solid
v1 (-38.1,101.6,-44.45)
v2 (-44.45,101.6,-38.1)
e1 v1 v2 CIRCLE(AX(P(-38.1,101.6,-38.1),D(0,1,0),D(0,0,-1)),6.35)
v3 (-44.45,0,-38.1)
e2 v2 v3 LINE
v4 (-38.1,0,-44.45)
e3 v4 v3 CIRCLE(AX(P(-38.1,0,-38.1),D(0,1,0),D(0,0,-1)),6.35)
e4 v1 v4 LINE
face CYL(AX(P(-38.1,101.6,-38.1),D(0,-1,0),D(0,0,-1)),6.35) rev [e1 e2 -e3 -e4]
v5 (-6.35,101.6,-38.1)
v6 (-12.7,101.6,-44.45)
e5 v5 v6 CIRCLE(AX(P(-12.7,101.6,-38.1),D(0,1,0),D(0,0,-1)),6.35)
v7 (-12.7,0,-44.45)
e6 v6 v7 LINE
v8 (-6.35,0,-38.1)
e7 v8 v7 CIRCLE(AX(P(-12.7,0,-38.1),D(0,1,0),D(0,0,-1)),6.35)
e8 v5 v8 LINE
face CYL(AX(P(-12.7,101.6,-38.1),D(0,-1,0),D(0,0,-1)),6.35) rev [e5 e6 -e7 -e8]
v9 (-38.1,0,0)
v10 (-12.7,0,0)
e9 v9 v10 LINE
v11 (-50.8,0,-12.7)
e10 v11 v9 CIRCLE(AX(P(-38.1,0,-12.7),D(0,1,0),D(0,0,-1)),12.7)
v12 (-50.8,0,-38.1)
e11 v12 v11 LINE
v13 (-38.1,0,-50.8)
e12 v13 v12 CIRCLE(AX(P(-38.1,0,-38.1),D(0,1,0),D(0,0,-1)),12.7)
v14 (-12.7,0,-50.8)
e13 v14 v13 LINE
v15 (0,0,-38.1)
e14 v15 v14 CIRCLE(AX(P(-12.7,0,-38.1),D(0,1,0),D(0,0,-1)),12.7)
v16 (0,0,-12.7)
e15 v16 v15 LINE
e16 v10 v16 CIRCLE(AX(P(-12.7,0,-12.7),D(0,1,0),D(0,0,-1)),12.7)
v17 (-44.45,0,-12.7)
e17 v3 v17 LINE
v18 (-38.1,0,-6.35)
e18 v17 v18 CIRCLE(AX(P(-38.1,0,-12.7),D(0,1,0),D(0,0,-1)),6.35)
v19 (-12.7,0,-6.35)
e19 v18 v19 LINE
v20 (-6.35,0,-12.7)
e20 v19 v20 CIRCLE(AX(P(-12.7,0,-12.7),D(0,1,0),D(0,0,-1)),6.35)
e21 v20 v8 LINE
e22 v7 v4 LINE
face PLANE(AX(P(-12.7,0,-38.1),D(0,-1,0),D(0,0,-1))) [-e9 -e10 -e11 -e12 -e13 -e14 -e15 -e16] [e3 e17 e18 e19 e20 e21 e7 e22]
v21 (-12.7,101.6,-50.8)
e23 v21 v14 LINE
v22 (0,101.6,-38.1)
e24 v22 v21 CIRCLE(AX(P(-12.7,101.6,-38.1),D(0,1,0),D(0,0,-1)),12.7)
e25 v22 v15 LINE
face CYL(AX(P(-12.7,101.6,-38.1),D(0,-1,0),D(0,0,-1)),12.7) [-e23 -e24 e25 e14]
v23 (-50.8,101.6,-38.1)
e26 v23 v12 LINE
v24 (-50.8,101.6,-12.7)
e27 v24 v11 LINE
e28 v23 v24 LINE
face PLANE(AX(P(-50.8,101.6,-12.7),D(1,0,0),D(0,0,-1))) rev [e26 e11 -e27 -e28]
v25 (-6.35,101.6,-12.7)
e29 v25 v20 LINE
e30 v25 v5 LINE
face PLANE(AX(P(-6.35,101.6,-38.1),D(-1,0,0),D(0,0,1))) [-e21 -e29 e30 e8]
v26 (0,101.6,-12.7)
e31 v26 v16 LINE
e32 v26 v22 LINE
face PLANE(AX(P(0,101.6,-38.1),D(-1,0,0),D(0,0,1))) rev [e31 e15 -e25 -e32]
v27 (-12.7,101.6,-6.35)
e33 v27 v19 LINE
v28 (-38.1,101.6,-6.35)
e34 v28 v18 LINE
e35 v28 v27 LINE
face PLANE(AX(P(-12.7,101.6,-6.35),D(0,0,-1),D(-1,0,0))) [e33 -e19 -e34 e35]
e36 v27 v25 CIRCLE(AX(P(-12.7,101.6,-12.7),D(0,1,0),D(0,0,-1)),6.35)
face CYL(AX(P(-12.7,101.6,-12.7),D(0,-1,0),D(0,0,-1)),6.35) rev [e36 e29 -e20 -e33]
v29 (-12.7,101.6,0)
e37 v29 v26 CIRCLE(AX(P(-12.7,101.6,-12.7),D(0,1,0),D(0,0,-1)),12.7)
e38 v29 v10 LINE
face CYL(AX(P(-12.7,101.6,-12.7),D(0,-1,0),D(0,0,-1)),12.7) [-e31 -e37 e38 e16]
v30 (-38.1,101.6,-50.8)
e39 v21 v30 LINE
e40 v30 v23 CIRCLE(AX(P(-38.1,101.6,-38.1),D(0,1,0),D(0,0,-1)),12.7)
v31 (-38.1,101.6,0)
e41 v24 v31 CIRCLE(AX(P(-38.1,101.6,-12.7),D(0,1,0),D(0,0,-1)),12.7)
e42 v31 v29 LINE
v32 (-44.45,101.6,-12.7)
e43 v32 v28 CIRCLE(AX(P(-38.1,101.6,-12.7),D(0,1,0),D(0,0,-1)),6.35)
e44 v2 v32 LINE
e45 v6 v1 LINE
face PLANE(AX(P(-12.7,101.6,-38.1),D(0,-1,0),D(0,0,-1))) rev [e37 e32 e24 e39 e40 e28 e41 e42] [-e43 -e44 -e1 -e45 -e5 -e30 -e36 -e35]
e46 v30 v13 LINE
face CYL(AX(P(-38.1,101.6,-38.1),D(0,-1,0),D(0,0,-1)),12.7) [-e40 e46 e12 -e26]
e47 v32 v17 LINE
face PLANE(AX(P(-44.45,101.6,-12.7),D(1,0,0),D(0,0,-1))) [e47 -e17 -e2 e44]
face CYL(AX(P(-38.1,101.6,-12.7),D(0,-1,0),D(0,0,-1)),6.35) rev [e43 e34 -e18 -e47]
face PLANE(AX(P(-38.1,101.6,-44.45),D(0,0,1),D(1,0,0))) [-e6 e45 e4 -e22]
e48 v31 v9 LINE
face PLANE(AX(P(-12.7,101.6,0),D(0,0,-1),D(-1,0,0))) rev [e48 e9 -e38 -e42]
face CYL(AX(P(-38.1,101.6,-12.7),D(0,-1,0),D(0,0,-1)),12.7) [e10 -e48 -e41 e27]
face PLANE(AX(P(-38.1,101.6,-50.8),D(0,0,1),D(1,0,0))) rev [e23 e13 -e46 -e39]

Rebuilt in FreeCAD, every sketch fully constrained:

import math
import FreeCAD as App
import Part
import Sketcher
from FreeCAD import Vector
Q = App.Units.Quantity

doc = App.newDocument("Part")
body = doc.addObject("PartDesign::Body", "Body")

# Sketch on XZ plane
sketch1 = body.newObject("Sketcher::SketchObject", "Sketch")
sketch1.AttachmentSupport = (doc.getObject("XZ_Plane"), [""])
sketch1.MapMode = "FlatFace"
sketch1.addGeometry([
    Part.LineSegment(Vector(-38, 0, 0), Vector(-13, 0, 0)),  # 0
    Part.ArcOfCircle(Part.Circle(Vector(-13, -13, 0), Vector(0, 0, 1), 13), math.radians(0), math.radians(90)),  # 1
    Part.LineSegment(Vector(0, -13, 0), Vector(0, -38, 0)),  # 2
    Part.ArcOfCircle(Part.Circle(Vector(-13, -38, 0), Vector(0, 0, 1), 13), math.radians(-90), math.radians(0)),  # 3
    Part.LineSegment(Vector(-13, -51, 0), Vector(-38, -51, 0)),  # 4
    Part.ArcOfCircle(Part.Circle(Vector(-38, -38, 0), Vector(0, 0, 1), 13), math.radians(180), math.radians(270)),  # 5
    Part.LineSegment(Vector(-51, -38, 0), Vector(-51, -13, 0)),  # 6
    Part.ArcOfCircle(Part.Circle(Vector(-38, -13, 0), Vector(0, 0, 1), 13), math.radians(90), math.radians(180)),  # 7
    Part.LineSegment(Vector(-13, -6, 0), Vector(-38, -6, 0)),  # 8
    Part.ArcOfCircle(Part.Circle(Vector(-38, -13, 0), Vector(0, 0, 1), 6), math.radians(90), math.radians(180)),  # 9
    Part.LineSegment(Vector(-44, -13, 0), Vector(-44, -38, 0)),  # 10
    Part.ArcOfCircle(Part.Circle(Vector(-38, -38, 0), Vector(0, 0, 1), 6), math.radians(180), math.radians(270)),  # 11
    Part.LineSegment(Vector(-38, -44, 0), Vector(-13, -44, 0)),  # 12
    Part.ArcOfCircle(Part.Circle(Vector(-13, -38, 0), Vector(0, 0, 1), 6), math.radians(-90), math.radians(0)),  # 13
    Part.LineSegment(Vector(-6, -38, 0), Vector(-6, -13, 0)),  # 14
    Part.ArcOfCircle(Part.Circle(Vector(-13, -13, 0), Vector(0, 0, 1), 6), math.radians(0), math.radians(90)),  # 15
], False)
sketch1.addConstraint([
    Sketcher.Constraint("Tangent", 0, 2, 1, 2),
    Sketcher.Constraint("Tangent", 1, 1, 2, 1),
    Sketcher.Constraint("Tangent", 2, 2, 3, 2),
    Sketcher.Constraint("Tangent", 3, 1, 4, 1),
    Sketcher.Constraint("Tangent", 4, 2, 5, 2),
    Sketcher.Constraint("Tangent", 5, 1, 6, 1),
    Sketcher.Constraint("Tangent", 6, 2, 7, 2),
    Sketcher.Constraint("Tangent", 7, 1, 0, 1),
    Sketcher.Constraint("Tangent", 8, 2, 9, 1),
    Sketcher.Constraint("Tangent", 9, 2, 10, 1),
    Sketcher.Constraint("Tangent", 10, 2, 11, 1),
    Sketcher.Constraint("Tangent", 11, 2, 12, 1),
    Sketcher.Constraint("Tangent", 12, 2, 13, 1),
    Sketcher.Constraint("Tangent", 13, 2, 14, 1),
    Sketcher.Constraint("Tangent", 14, 2, 15, 1),
    Sketcher.Constraint("Tangent", 15, 2, 8, 1),
    Sketcher.Constraint("Horizontal", 0),
    Sketcher.Constraint("Vertical", 2),
    Sketcher.Constraint("Horizontal", 4),
    Sketcher.Constraint("Vertical", 6),
    Sketcher.Constraint("Horizontal", 8),
    Sketcher.Constraint("Vertical", 10),
    Sketcher.Constraint("Horizontal", 12),
    Sketcher.Constraint("Vertical", 14),
    Sketcher.Constraint("Coincident", 9, 3, 7, 3),
    Sketcher.Constraint("Coincident", 11, 3, 5, 3),
    Sketcher.Constraint("Coincident", 13, 3, 3, 3),
    Sketcher.Constraint("Equal", 1, 3),
    Sketcher.Constraint("Equal", 3, 5),
    Sketcher.Constraint("Equal", 5, 7),
    Sketcher.Constraint("Equal", 13, 15),
    Sketcher.Constraint("PointOnObject", 0, 2, -1),
    Sketcher.Constraint("PointOnObject", 1, 1, -2),
    Sketcher.Constraint("Equal", 12, 2),
    Sketcher.Constraint("Radius", 1, Q("0.5 in")),
    Sketcher.Constraint("DistanceX", 0, 1, 0, 2, Q("1 in")),
    Sketcher.Constraint("Radius", 9, Q("0.25 in")),
])
pad1 = body.newObject("PartDesign::Pad", "Pad")
pad1.Profile = sketch1
pad1.Length = Q("4 in")
pad1.Reversed = True

doc.recompute()
